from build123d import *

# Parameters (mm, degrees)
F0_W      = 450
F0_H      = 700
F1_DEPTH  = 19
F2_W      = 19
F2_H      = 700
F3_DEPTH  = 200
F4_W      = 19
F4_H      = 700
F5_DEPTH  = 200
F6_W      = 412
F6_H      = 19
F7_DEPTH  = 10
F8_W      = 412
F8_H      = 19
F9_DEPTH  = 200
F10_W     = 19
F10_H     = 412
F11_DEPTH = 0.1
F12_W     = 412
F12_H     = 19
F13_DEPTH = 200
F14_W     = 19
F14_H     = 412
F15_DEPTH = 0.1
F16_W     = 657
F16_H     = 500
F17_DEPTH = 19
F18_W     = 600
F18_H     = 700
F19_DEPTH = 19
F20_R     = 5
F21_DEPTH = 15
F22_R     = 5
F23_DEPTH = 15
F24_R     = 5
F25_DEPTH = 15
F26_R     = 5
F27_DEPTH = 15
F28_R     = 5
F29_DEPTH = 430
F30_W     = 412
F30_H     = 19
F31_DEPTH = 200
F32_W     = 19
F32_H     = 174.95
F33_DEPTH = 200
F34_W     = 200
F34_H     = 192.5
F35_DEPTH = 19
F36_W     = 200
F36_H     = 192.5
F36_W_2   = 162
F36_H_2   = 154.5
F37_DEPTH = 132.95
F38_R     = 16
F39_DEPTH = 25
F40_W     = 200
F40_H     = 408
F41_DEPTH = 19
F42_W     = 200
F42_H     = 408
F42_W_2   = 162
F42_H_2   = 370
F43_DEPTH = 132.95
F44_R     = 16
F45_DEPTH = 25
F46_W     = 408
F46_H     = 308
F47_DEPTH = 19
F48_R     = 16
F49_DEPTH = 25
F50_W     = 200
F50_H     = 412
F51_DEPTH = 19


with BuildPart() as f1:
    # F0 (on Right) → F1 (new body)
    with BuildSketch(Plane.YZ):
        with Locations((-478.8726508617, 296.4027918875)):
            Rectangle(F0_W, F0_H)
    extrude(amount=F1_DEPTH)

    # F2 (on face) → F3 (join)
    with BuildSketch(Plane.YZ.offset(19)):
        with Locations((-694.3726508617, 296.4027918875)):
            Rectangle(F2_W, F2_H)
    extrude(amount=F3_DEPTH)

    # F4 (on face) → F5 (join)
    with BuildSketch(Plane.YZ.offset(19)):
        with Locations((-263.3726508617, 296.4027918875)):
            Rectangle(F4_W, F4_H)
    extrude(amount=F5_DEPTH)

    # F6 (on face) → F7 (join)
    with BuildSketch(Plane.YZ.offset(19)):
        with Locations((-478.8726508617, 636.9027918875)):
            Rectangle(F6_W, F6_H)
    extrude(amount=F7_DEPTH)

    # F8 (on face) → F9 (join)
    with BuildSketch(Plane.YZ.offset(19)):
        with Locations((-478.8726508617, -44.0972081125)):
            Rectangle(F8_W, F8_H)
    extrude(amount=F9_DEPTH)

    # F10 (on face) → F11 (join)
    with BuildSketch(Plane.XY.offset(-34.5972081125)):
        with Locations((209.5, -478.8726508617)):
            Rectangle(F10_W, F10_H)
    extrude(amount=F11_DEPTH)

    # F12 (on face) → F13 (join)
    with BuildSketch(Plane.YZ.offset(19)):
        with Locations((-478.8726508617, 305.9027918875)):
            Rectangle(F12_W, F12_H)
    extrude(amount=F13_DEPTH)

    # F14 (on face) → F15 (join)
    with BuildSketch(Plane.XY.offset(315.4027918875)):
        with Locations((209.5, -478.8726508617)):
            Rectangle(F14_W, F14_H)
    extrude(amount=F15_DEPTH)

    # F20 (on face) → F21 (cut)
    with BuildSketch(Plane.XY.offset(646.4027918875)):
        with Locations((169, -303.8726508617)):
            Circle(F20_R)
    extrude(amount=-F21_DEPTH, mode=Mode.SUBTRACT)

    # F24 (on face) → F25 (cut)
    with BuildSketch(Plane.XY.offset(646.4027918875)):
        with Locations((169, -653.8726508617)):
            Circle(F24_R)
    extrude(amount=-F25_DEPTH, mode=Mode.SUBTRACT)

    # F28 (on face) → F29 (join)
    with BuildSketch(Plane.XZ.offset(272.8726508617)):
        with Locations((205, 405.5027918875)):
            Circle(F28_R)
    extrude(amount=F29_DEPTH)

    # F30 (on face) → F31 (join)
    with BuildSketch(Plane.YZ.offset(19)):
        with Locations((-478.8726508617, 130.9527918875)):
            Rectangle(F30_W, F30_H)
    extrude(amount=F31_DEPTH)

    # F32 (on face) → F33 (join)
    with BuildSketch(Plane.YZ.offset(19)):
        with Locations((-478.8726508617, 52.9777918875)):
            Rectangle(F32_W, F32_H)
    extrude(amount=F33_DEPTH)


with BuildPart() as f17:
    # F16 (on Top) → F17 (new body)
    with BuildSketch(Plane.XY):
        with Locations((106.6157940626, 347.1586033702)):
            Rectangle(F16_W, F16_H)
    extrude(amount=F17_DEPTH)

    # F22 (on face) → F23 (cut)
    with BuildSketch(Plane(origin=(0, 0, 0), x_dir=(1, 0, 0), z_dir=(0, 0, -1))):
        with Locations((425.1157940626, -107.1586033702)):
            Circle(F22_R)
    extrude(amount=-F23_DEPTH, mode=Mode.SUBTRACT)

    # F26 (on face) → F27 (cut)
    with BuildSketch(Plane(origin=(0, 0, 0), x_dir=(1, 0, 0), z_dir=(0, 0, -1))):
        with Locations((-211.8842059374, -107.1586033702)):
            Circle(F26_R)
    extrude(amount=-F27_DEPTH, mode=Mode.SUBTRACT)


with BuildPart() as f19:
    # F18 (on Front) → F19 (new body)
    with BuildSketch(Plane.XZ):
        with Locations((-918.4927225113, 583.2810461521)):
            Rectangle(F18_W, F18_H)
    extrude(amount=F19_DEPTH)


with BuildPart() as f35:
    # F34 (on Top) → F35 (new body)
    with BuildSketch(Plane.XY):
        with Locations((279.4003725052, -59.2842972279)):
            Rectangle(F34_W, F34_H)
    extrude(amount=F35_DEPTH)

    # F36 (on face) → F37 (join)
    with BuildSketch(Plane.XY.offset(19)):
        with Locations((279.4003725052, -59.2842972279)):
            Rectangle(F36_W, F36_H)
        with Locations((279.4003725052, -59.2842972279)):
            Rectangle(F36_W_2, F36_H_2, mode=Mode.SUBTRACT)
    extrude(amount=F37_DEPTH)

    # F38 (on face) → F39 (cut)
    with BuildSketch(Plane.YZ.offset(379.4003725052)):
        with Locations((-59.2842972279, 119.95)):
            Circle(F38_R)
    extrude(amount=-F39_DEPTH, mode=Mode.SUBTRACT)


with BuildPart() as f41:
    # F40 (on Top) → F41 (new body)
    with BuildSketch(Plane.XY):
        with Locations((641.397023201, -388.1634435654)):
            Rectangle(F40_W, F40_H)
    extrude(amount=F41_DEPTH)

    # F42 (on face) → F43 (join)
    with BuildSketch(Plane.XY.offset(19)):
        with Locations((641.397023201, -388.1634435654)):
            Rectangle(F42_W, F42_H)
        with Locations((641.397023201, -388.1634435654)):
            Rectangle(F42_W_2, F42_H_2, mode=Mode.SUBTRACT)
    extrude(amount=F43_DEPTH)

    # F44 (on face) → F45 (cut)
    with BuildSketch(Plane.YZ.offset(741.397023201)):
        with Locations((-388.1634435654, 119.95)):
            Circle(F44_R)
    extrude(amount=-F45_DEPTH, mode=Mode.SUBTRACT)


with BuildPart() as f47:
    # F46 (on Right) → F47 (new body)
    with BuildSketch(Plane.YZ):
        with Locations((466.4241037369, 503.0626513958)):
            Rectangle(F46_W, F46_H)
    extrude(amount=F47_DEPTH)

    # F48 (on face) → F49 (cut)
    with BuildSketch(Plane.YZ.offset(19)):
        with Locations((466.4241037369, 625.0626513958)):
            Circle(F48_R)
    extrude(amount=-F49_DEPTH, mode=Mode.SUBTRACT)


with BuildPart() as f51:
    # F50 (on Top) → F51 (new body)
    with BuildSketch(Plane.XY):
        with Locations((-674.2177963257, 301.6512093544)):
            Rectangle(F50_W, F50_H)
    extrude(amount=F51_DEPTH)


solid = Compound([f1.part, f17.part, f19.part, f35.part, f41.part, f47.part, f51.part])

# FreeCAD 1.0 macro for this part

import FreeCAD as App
import Part
import Sketcher
from FreeCAD import Vector
Q = App.Units.Quantity


def add_polygon(sketch, points):
    """Adds a closed chain of lines whose ends are joined by coincident constraints."""
    first, n = sketch.GeometryCount, len(points)
    for a, b in zip(points, points[1:] + points[:1]):
        sketch.addGeometry(Part.LineSegment(App.Vector(*a, 0), App.Vector(*b, 0)), False)
    for i in range(n):
        sketch.addConstraint(Sketcher.Constraint("Coincident", first + i, 2, first + (i + 1) % n, 1))

doc = App.newDocument("Part")
body = doc.addObject("PartDesign::Body", "Body")

# Sketch on YZ plane
sketch1 = body.newObject("Sketcher::SketchObject", "Sketch")
sketch1.AttachmentSupport = (doc.getObject("YZ_Plane"), [""])
sketch1.MapMode = "FlatFace"
add_polygon(sketch1, [(-703.872651, 646.402792), (-703.872651, -53.597208), (-253.872651, -53.597208), (-253.872651, 646.402792)])  # lines 0-3
sketch1.addConstraint([
    Sketcher.Constraint("Vertical", 0),
    Sketcher.Constraint("Horizontal", 1),
    Sketcher.Constraint("Vertical", 2),
    Sketcher.Constraint("Horizontal", 3),
    Sketcher.Constraint("DistanceX", 1, 1, 1, 2, Q("450 mm")),
    Sketcher.Constraint("DistanceY", 0, 2, 0, 1, Q("700 mm")),
    Sketcher.Constraint("DistanceX", 0, 2, -1, 1, Q("703.872651 mm")),
    Sketcher.Constraint("DistanceY", 0, 2, -1, 1, Q("53.597208 mm")),
])
pad1 = body.newObject("PartDesign::Pad", "Pad")
pad1.Profile = sketch1
pad1.Length = 19

# Sketch on YZ plane
sketch2 = body.newObject("Sketcher::SketchObject", "Sketch001")
sketch2.AttachmentSupport = (doc.getObject("YZ_Plane"), [""])
sketch2.MapMode = "FlatFace"
sketch2.AttachmentOffset = App.Placement(Vector(0, 0, 19), App.Rotation())
add_polygon(sketch2, [(-703.872651, 646.402792), (-703.872651, -53.597208), (-684.872651, -53.597208), (-684.872651, 646.402792)])  # lines 0-3
sketch2.addConstraint([
    Sketcher.Constraint("Vertical", 0),
    Sketcher.Constraint("Horizontal", 1),
    Sketcher.Constraint("Vertical", 2),
    Sketcher.Constraint("Horizontal", 3),
    Sketcher.Constraint("DistanceX", 1, 1, 1, 2, Q("19 mm")),
    Sketcher.Constraint("DistanceY", 0, 2, 0, 1, Q("700 mm")),
    Sketcher.Constraint("DistanceX", 0, 2, -1, 1, Q("703.872651 mm")),
    Sketcher.Constraint("DistanceY", 0, 2, -1, 1, Q("53.597208 mm")),
])
pad2 = body.newObject("PartDesign::Pad", "Pad001")
pad2.Profile = sketch2
pad2.Length = 200

# Sketch on YZ plane
sketch3 = body.newObject("Sketcher::SketchObject", "Sketch002")
sketch3.AttachmentSupport = (doc.getObject("YZ_Plane"), [""])
sketch3.MapMode = "FlatFace"
sketch3.AttachmentOffset = App.Placement(Vector(0, 0, 19), App.Rotation())
add_polygon(sketch3, [(-272.872651, 646.402792), (-272.872651, -53.597208), (-253.872651, -53.597208), (-253.872651, 646.402792)])  # lines 0-3
sketch3.addConstraint([
    Sketcher.Constraint("Vertical", 0),
    Sketcher.Constraint("Horizontal", 1),
    Sketcher.Constraint("Vertical", 2),
    Sketcher.Constraint("Horizontal", 3),
    Sketcher.Constraint("DistanceX", 1, 1, 1, 2, Q("19 mm")),
    Sketcher.Constraint("DistanceY", 0, 2, 0, 1, Q("700 mm")),
    Sketcher.Constraint("DistanceX", 0, 2, -1, 1, Q("272.872651 mm")),
    Sketcher.Constraint("DistanceY", 0, 2, -1, 1, Q("53.597208 mm")),
])
pad3 = body.newObject("PartDesign::Pad", "Pad002")
pad3.Profile = sketch3
pad3.Length = 200

# Sketch on YZ plane
sketch4 = body.newObject("Sketcher::SketchObject", "Sketch003")
sketch4.AttachmentSupport = (doc.getObject("YZ_Plane"), [""])
sketch4.MapMode = "FlatFace"
sketch4.AttachmentOffset = App.Placement(Vector(0, 0, 19), App.Rotation())
add_polygon(sketch4, [(-684.872651, 646.402792), (-684.872651, 627.402792), (-272.872651, 627.402792), (-272.872651, 646.402792)])  # lines 0-3
sketch4.addConstraint([
    Sketcher.Constraint("Vertical", 0),
    Sketcher.Constraint("Horizontal", 1),
    Sketcher.Constraint("Vertical", 2),
    Sketcher.Constraint("Horizontal", 3),
    Sketcher.Constraint("DistanceX", 1, 1, 1, 2, Q("412 mm")),
    Sketcher.Constraint("DistanceY", 0, 2, 0, 1, Q("19 mm")),
    Sketcher.Constraint("DistanceX", 0, 2, -1, 1, Q("684.872651 mm")),
    Sketcher.Constraint("DistanceY", -1, 1, 0, 2, Q("627.402792 mm")),
])
pad4 = body.newObject("PartDesign::Pad", "Pad003")
pad4.Profile = sketch4
pad4.Length = 10

# Sketch on YZ plane
sketch5 = body.newObject("Sketcher::SketchObject", "Sketch004")
sketch5.AttachmentSupport = (doc.getObject("YZ_Plane"), [""])
sketch5.MapMode = "FlatFace"
sketch5.AttachmentOffset = App.Placement(Vector(0, 0, 19), App.Rotation())
add_polygon(sketch5, [(-684.872651, -34.597208), (-684.872651, -53.597208), (-272.872651, -53.597208), (-272.872651, -34.597208)])  # lines 0-3
sketch5.addConstraint([
    Sketcher.Constraint("Vertical", 0),
    Sketcher.Constraint("Horizontal", 1),
    Sketcher.Constraint("Vertical", 2),
    Sketcher.Constraint("Horizontal", 3),
    Sketcher.Constraint("DistanceX", 1, 1, 1, 2, Q("412 mm")),
    Sketcher.Constraint("DistanceY", 0, 2, 0, 1, Q("19 mm")),
    Sketcher.Constraint("DistanceX", 0, 2, -1, 1, Q("684.872651 mm")),
    Sketcher.Constraint("DistanceY", 0, 2, -1, 1, Q("53.597208 mm")),
])
pad5 = body.newObject("PartDesign::Pad", "Pad004")
pad5.Profile = sketch5
pad5.Length = 200

# Sketch on XY plane
sketch6 = body.newObject("Sketcher::SketchObject", "Sketch005")
sketch6.AttachmentSupport = (doc.getObject("XY_Plane"), [""])
sketch6.MapMode = "FlatFace"
sketch6.AttachmentOffset = App.Placement(Vector(0, 0, -34.597208), App.Rotation())
add_polygon(sketch6, [(200, -272.872651), (200, -684.872651), (219, -684.872651), (219, -272.872651)])  # lines 0-3
sketch6.addConstraint([
    Sketcher.Constraint("Vertical", 0),
    Sketcher.Constraint("Horizontal", 1),
    Sketcher.Constraint("Vertical", 2),
    Sketcher.Constraint("Horizontal", 3),
    Sketcher.Constraint("DistanceX", 1, 1, 1, 2, Q("19 mm")),
    Sketcher.Constraint("DistanceY", 0, 2, 0, 1, Q("412 mm")),
    Sketcher.Constraint("DistanceX", -1, 1, 0, 2, Q("200 mm")),
    Sketcher.Constraint("DistanceY", 0, 2, -1, 1, Q("684.872651 mm")),
])
pad6 = body.newObject("PartDesign::Pad", "Pad005")
pad6.Profile = sketch6
pad6.Length = 0.1

# Sketch on YZ plane
sketch7 = body.newObject("Sketcher::SketchObject", "Sketch006")
sketch7.AttachmentSupport = (doc.getObject("YZ_Plane"), [""])
sketch7.MapMode = "FlatFace"
sketch7.AttachmentOffset = App.Placement(Vector(0, 0, 19), App.Rotation())
add_polygon(sketch7, [(-684.872651, 315.402792), (-684.872651, 296.402792), (-272.872651, 296.402792), (-272.872651, 315.402792)])  # lines 0-3
sketch7.addConstraint([
    Sketcher.Constraint("Vertical", 0),
    Sketcher.Constraint("Horizontal", 1),
    Sketcher.Constraint("Vertical", 2),
    Sketcher.Constraint("Horizontal", 3),
    Sketcher.Constraint("DistanceX", 1, 1, 1, 2, Q("412 mm")),
    Sketcher.Constraint("DistanceY", 0, 2, 0, 1, Q("19 mm")),
    Sketcher.Constraint("DistanceX", 0, 2, -1, 1, Q("684.872651 mm")),
    Sketcher.Constraint("DistanceY", -1, 1, 0, 2, Q("296.402792 mm")),
])
pad7 = body.newObject("PartDesign::Pad", "Pad006")
pad7.Profile = sketch7
pad7.Length = 200

# Sketch on XY plane
sketch8 = body.newObject("Sketcher::SketchObject", "Sketch007")
sketch8.AttachmentSupport = (doc.getObject("XY_Plane"), [""])
sketch8.MapMode = "FlatFace"
sketch8.AttachmentOffset = App.Placement(Vector(0, 0, 315.402792), App.Rotation())
add_polygon(sketch8, [(200, -272.872651), (200, -684.872651), (219, -684.872651), (219, -272.872651)])  # lines 0-3
sketch8.addConstraint([
    Sketcher.Constraint("Vertical", 0),
    Sketcher.Constraint("Horizontal", 1),
    Sketcher.Constraint("Vertical", 2),
    Sketcher.Constraint("Horizontal", 3),
    Sketcher.Constraint("DistanceX", 1, 1, 1, 2, Q("19 mm")),
    Sketcher.Constraint("DistanceY", 0, 2, 0, 1, Q("412 mm")),
    Sketcher.Constraint("DistanceX", -1, 1, 0, 2, Q("200 mm")),
    Sketcher.Constraint("DistanceY", 0, 2, -1, 1, Q("684.872651 mm")),
])
pad8 = body.newObject("PartDesign::Pad", "Pad007")
pad8.Profile = sketch8
pad8.Length = 0.1

# Sketch on XY plane
sketch9 = body.newObject("Sketcher::SketchObject", "Sketch008")
sketch9.AttachmentSupport = (doc.getObject("XY_Plane"), [""])
sketch9.MapMode = "FlatFace"
sketch9.AttachmentOffset = App.Placement(Vector(0, 0, 646.402792), App.Rotation())
sketch9.addGeometry(Part.Circle(Vector(169, -303.872651, 0), Vector(0, 0, 1), 5), False)
sketch9.addConstraint([
    Sketcher.Constraint("Diameter", 0, Q("10 mm")),
    Sketcher.Constraint("DistanceX", -1, 1, 0, 3, Q("169 mm")),
    Sketcher.Constraint("DistanceY", 0, 3, -1, 1, Q("303.872651 mm")),
])
pocket1 = body.newObject("PartDesign::Pocket", "Pocket")
pocket1.Profile = sketch9
pocket1.Length = 15

# Sketch on XY plane
sketch10 = body.newObject("Sketcher::SketchObject", "Sketch009")
sketch10.AttachmentSupport = (doc.getObject("XY_Plane"), [""])
sketch10.MapMode = "FlatFace"
sketch10.AttachmentOffset = App.Placement(Vector(0, 0, 646.402792), App.Rotation())
sketch10.addGeometry(Part.Circle(Vector(169, -653.872651, 0), Vector(0, 0, 1), 5), False)
sketch10.addConstraint([
    Sketcher.Constraint("Diameter", 0, Q("10 mm")),
    Sketcher.Constraint("DistanceX", -1, 1, 0, 3, Q("169 mm")),
    Sketcher.Constraint("DistanceY", 0, 3, -1, 1, Q("653.872651 mm")),
])
pocket2 = body.newObject("PartDesign::Pocket", "Pocket001")
pocket2.Profile = sketch10
pocket2.Length = 15

# Sketch on XZ plane
sketch11 = body.newObject("Sketcher::SketchObject", "Sketch010")
sketch11.AttachmentSupport = (doc.getObject("XZ_Plane"), [""])
sketch11.MapMode = "FlatFace"
sketch11.AttachmentOffset = App.Placement(Vector(0, 0, 272.872651), App.Rotation())
sketch11.addGeometry(Part.Circle(Vector(205, 405.502792, 0), Vector(0, 0, 1), 5), False)
sketch11.addConstraint([
    Sketcher.Constraint("Diameter", 0, Q("10 mm")),
    Sketcher.Constraint("DistanceX", -1, 1, 0, 3, Q("205 mm")),
    Sketcher.Constraint("DistanceY", -1, 1, 0, 3, Q("405.502792 mm")),
])
pad9 = body.newObject("PartDesign::Pad", "Pad008")
pad9.Profile = sketch11
pad9.Length = 430

# Sketch on YZ plane
sketch12 = body.newObject("Sketcher::SketchObject", "Sketch011")
sketch12.AttachmentSupport = (doc.getObject("YZ_Plane"), [""])
sketch12.MapMode = "FlatFace"
sketch12.AttachmentOffset = App.Placement(Vector(0, 0, 19), App.Rotation())
add_polygon(sketch12, [(-684.872651, 140.452792), (-684.872651, 121.452792), (-272.872651, 121.452792), (-272.872651, 140.452792)])  # lines 0-3
sketch12.addConstraint([
    Sketcher.Constraint("Vertical", 0),
    Sketcher.Constraint("Horizontal", 1),
    Sketcher.Constraint("Vertical", 2),
    Sketcher.Constraint("Horizontal", 3),
    Sketcher.Constraint("DistanceX", 1, 1, 1, 2, Q("412 mm")),
    Sketcher.Constraint("DistanceY", 0, 2, 0, 1, Q("19 mm")),
    Sketcher.Constraint("DistanceX", 0, 2, -1, 1, Q("684.872651 mm")),
    Sketcher.Constraint("DistanceY", -1, 1, 0, 2, Q("121.452792 mm")),
])
pad10 = body.newObject("PartDesign::Pad", "Pad009")
pad10.Profile = sketch12
pad10.Length = 200

# Sketch on YZ plane
sketch13 = body.newObject("Sketcher::SketchObject", "Sketch012")
sketch13.AttachmentSupport = (doc.getObject("YZ_Plane"), [""])
sketch13.MapMode = "FlatFace"
sketch13.AttachmentOffset = App.Placement(Vector(0, 0, 19), App.Rotation())
add_polygon(sketch13, [(-488.372651, 140.452792), (-488.372651, -34.497208), (-469.372651, -34.497208), (-469.372651, 140.452792)])  # lines 0-3
sketch13.addConstraint([
    Sketcher.Constraint("Vertical", 0),
    Sketcher.Constraint("Horizontal", 1),
    Sketcher.Constraint("Vertical", 2),
    Sketcher.Constraint("Horizontal", 3),
    Sketcher.Constraint("DistanceX", 1, 1, 1, 2, Q("19 mm")),
    Sketcher.Constraint("DistanceY", 0, 2, 0, 1, Q("174.95 mm")),
    Sketcher.Constraint("DistanceX", 0, 2, -1, 1, Q("488.372651 mm")),
    Sketcher.Constraint("DistanceY", 0, 2, -1, 1, Q("34.497208 mm")),
])
pad11 = body.newObject("PartDesign::Pad", "Pad010")
pad11.Profile = sketch13
pad11.Length = 200
body2 = doc.addObject("PartDesign::Body", "Body001")

# Sketch on XY plane
sketch14 = body2.newObject("Sketcher::SketchObject", "Sketch013")
sketch14.AttachmentSupport = (doc.getObject("XY_Plane001"), [""])
sketch14.MapMode = "FlatFace"
add_polygon(sketch14, [(-221.884206, 597.158603), (-221.884206, 97.158603), (435.115794, 97.158603), (435.115794, 597.158603)])  # lines 0-3
sketch14.addConstraint([
    Sketcher.Constraint("Vertical", 0),
    Sketcher.Constraint("Horizontal", 1),
    Sketcher.Constraint("Vertical", 2),
    Sketcher.Constraint("Horizontal", 3),
    Sketcher.Constraint("DistanceX", 1, 1, 1, 2, Q("657 mm")),
    Sketcher.Constraint("DistanceY", 0, 2, 0, 1, Q("500 mm")),
    Sketcher.Constraint("DistanceX", 0, 2, -1, 1, Q("221.884206 mm")),
    Sketcher.Constraint("DistanceY", -1, 1, 0, 2, Q("97.158603 mm")),
])
pad12 = body2.newObject("PartDesign::Pad", "Pad011")
pad12.Profile = sketch14
pad12.Length = 19

# Sketch on XY plane
sketch15 = body2.newObject("Sketcher::SketchObject", "Sketch014")
sketch15.AttachmentSupport = (doc.getObject("XY_Plane001"), [""])
sketch15.MapMode = "FlatFace"
sketch15.addGeometry(Part.Circle(Vector(425.115794, 107.158603, 0), Vector(0, 0, 1), 5), False)
sketch15.addConstraint([
    Sketcher.Constraint("Diameter", 0, Q("10 mm")),
    Sketcher.Constraint("DistanceX", -1, 1, 0, 3, Q("425.115794 mm")),
    Sketcher.Constraint("DistanceY", -1, 1, 0, 3, Q("107.158603 mm")),
])
pocket3 = body2.newObject("PartDesign::Pocket", "Pocket002")
pocket3.Profile = sketch15
pocket3.Length = 15
pocket3.Reversed = True

# Sketch on XY plane
sketch16 = body2.newObject("Sketcher::SketchObject", "Sketch015")
sketch16.AttachmentSupport = (doc.getObject("XY_Plane001"), [""])
sketch16.MapMode = "FlatFace"
sketch16.addGeometry(Part.Circle(Vector(-211.884206, 107.158603, 0), Vector(0, 0, 1), 5), False)
sketch16.addConstraint([
    Sketcher.Constraint("Diameter", 0, Q("10 mm")),
    Sketcher.Constraint("DistanceX", 0, 3, -1, 1, Q("211.884206 mm")),
    Sketcher.Constraint("DistanceY", -1, 1, 0, 3, Q("107.158603 mm")),
])
pocket4 = body2.newObject("PartDesign::Pocket", "Pocket003")
pocket4.Profile = sketch16
pocket4.Length = 15
pocket4.Reversed = True
body3 = doc.addObject("PartDesign::Body", "Body002")

# Sketch on XZ plane
sketch17 = body3.newObject("Sketcher::SketchObject", "Sketch016")
sketch17.AttachmentSupport = (doc.getObject("XZ_Plane002"), [""])
sketch17.MapMode = "FlatFace"
add_polygon(sketch17, [(-1218.492723, 933.281046), (-1218.492723, 233.281046), (-618.492723, 233.281046), (-618.492723, 933.281046)])  # lines 0-3
sketch17.addConstraint([
    Sketcher.Constraint("Vertical", 0),
    Sketcher.Constraint("Horizontal", 1),
    Sketcher.Constraint("Vertical", 2),
    Sketcher.Constraint("Horizontal", 3),
    Sketcher.Constraint("DistanceX", 1, 1, 1, 2, Q("600 mm")),
    Sketcher.Constraint("DistanceY", 0, 2, 0, 1, Q("700 mm")),
    Sketcher.Constraint("DistanceX", 0, 2, -1, 1, Q("1218.492723 mm")),
    Sketcher.Constraint("DistanceY", -1, 1, 0, 2, Q("233.281046 mm")),
])
pad13 = body3.newObject("PartDesign::Pad", "Pad012")
pad13.Profile = sketch17
pad13.Length = 19
body4 = doc.addObject("PartDesign::Body", "Body003")

# Sketch on XY plane
sketch18 = body4.newObject("Sketcher::SketchObject", "Sketch017")
sketch18.AttachmentSupport = (doc.getObject("XY_Plane003"), [""])
sketch18.MapMode = "FlatFace"
add_polygon(sketch18, [(179.400373, 36.965703), (179.400373, -155.534297), (379.400373, -155.534297), (379.400373, 36.965703)])  # lines 0-3
sketch18.addConstraint([
    Sketcher.Constraint("Vertical", 0),
    Sketcher.Constraint("Horizontal", 1),
    Sketcher.Constraint("Vertical", 2),
    Sketcher.Constraint("Horizontal", 3),
    Sketcher.Constraint("DistanceX", 1, 1, 1, 2, Q("200 mm")),
    Sketcher.Constraint("DistanceY", 0, 2, 0, 1, Q("192.5 mm")),
    Sketcher.Constraint("DistanceX", -1, 1, 0, 2, Q("179.400373 mm")),
    Sketcher.Constraint("DistanceY", 0, 2, -1, 1, Q("155.534297 mm")),
])
pad14 = body4.newObject("PartDesign::Pad", "Pad013")
pad14.Profile = sketch18
pad14.Length = 19

# Sketch on XY plane
sketch19 = body4.newObject("Sketcher::SketchObject", "Sketch018")
sketch19.AttachmentSupport = (doc.getObject("XY_Plane003"), [""])
sketch19.MapMode = "FlatFace"
sketch19.AttachmentOffset = App.Placement(Vector(0, 0, 19), App.Rotation())
add_polygon(sketch19, [(179.400373, 36.965703), (179.400373, -155.534297), (379.400373, -155.534297), (379.400373, 36.965703)])  # lines 0-3
add_polygon(sketch19, [(360.400373, -136.534297), (198.400373, -136.534297), (198.400373, 17.965703), (360.400373, 17.965703)])  # lines 4-7
sketch19.addConstraint([
    Sketcher.Constraint("Vertical", 0),
    Sketcher.Constraint("Horizontal", 1),
    Sketcher.Constraint("Vertical", 2),
    Sketcher.Constraint("Horizontal", 3),
    Sketcher.Constraint("Horizontal", 4),
    Sketcher.Constraint("Vertical", 5),
    Sketcher.Constraint("Horizontal", 6),
    Sketcher.Constraint("Vertical", 7),
    Sketcher.Constraint("DistanceX", 1, 1, 1, 2, Q("200 mm")),
    Sketcher.Constraint("DistanceX", 4, 2, 4, 1, Q("162 mm")),
    Sketcher.Constraint("DistanceY", 0, 2, 0, 1, Q("192.5 mm")),
    Sketcher.Constraint("DistanceY", 5, 1, 5, 2, Q("154.5 mm")),
    Sketcher.Constraint("DistanceX", 0, 2, 4, 2, Q("19 mm")),
    Sketcher.Constraint("DistanceY", 0, 2, 4, 2, Q("19 mm")),
    Sketcher.Constraint("DistanceX", -1, 1, 0, 2, Q("179.400373 mm")),
    Sketcher.Constraint("DistanceY", 0, 2, -1, 1, Q("155.534297 mm")),
])
pad15 = body4.newObject("PartDesign::Pad", "Pad014")
pad15.Profile = sketch19
pad15.Length = 132.95

# Sketch on YZ plane
sketch20 = body4.newObject("Sketcher::SketchObject", "Sketch019")
sketch20.AttachmentSupport = (doc.getObject("YZ_Plane003"), [""])
sketch20.MapMode = "FlatFace"
sketch20.AttachmentOffset = App.Placement(Vector(0, 0, 379.400373), App.Rotation())
sketch20.addGeometry(Part.Circle(Vector(-59.284297, 119.95, 0), Vector(0, 0, 1), 16), False)
sketch20.addConstraint([
    Sketcher.Constraint("Diameter", 0, Q("32 mm")),
    Sketcher.Constraint("DistanceY", -1, 1, 0, 3, Q("119.95 mm")),
    Sketcher.Constraint("DistanceX", 0, 3, -1, 1, Q("59.284297 mm")),
])
pocket5 = body4.newObject("PartDesign::Pocket", "Pocket004")
pocket5.Profile = sketch20
pocket5.Length = 25
body5 = doc.addObject("PartDesign::Body", "Body004")

# Sketch on XY plane
sketch21 = body5.newObject("Sketcher::SketchObject", "Sketch020")
sketch21.AttachmentSupport = (doc.getObject("XY_Plane004"), [""])
sketch21.MapMode = "FlatFace"
add_polygon(sketch21, [(541.397023, -184.163444), (541.397023, -592.163444), (741.397023, -592.163444), (741.397023, -184.163444)])  # lines 0-3
sketch21.addConstraint([
    Sketcher.Constraint("Vertical", 0),
    Sketcher.Constraint("Horizontal", 1),
    Sketcher.Constraint("Vertical", 2),
    Sketcher.Constraint("Horizontal", 3),
    Sketcher.Constraint("DistanceX", 1, 1, 1, 2, Q("200 mm")),
    Sketcher.Constraint("DistanceY", 0, 2, 0, 1, Q("408 mm")),
    Sketcher.Constraint("DistanceX", -1, 1, 0, 2, Q("541.397023 mm")),
    Sketcher.Constraint("DistanceY", 0, 2, -1, 1, Q("592.163444 mm")),
])
pad16 = body5.newObject("PartDesign::Pad", "Pad015")
pad16.Profile = sketch21
pad16.Length = 19

# Sketch on XY plane
sketch22 = body5.newObject("Sketcher::SketchObject", "Sketch021")
sketch22.AttachmentSupport = (doc.getObject("XY_Plane004"), [""])
sketch22.MapMode = "FlatFace"
sketch22.AttachmentOffset = App.Placement(Vector(0, 0, 19), App.Rotation())
add_polygon(sketch22, [(541.397023, -184.163444), (541.397023, -592.163444), (741.397023, -592.163444), (741.397023, -184.163444)])  # lines 0-3
add_polygon(sketch22, [(722.397023, -573.163444), (560.397023, -573.163444), (560.397023, -203.163444), (722.397023, -203.163444)])  # lines 4-7
sketch22.addConstraint([
    Sketcher.Constraint("Vertical", 0),
    Sketcher.Constraint("Horizontal", 1),
    Sketcher.Constraint("Vertical", 2),
    Sketcher.Constraint("Horizontal", 3),
    Sketcher.Constraint("Horizontal", 4),
    Sketcher.Constraint("Vertical", 5),
    Sketcher.Constraint("Horizontal", 6),
    Sketcher.Constraint("Vertical", 7),
    Sketcher.Constraint("DistanceX", 1, 1, 1, 2, Q("200 mm")),
    Sketcher.Constraint("DistanceX", 4, 2, 4, 1, Q("162 mm")),
    Sketcher.Constraint("DistanceY", 0, 2, 0, 1, Q("408 mm")),
    Sketcher.Constraint("DistanceY", 5, 1, 5, 2, Q("370 mm")),
    Sketcher.Constraint("DistanceX", 0, 2, 4, 2, Q("19 mm")),
    Sketcher.Constraint("DistanceY", 0, 2, 4, 2, Q("19 mm")),
    Sketcher.Constraint("DistanceX", -1, 1, 0, 2, Q("541.397023 mm")),
    Sketcher.Constraint("DistanceY", 0, 2, -1, 1, Q("592.163444 mm")),
])
pad17 = body5.newObject("PartDesign::Pad", "Pad016")
pad17.Profile = sketch22
pad17.Length = 132.95

# Sketch on YZ plane
sketch23 = body5.newObject("Sketcher::SketchObject", "Sketch022")
sketch23.AttachmentSupport = (doc.getObject("YZ_Plane004"), [""])
sketch23.MapMode = "FlatFace"
sketch23.AttachmentOffset = App.Placement(Vector(0, 0, 741.397023), App.Rotation())
sketch23.addGeometry(Part.Circle(Vector(-388.163444, 119.95, 0), Vector(0, 0, 1), 16), False)
sketch23.addConstraint([
    Sketcher.Constraint("Diameter", 0, Q("32 mm")),
    Sketcher.Constraint("DistanceY", -1, 1, 0, 3, Q("119.95 mm")),
    Sketcher.Constraint("DistanceX", 0, 3, -1, 1, Q("388.163444 mm")),
])
pocket6 = body5.newObject("PartDesign::Pocket", "Pocket005")
pocket6.Profile = sketch23
pocket6.Length = 25
body6 = doc.addObject("PartDesign::Body", "Body005")

# Sketch on YZ plane
sketch24 = body6.newObject("Sketcher::SketchObject", "Sketch023")
sketch24.AttachmentSupport = (doc.getObject("YZ_Plane005"), [""])
sketch24.MapMode = "FlatFace"
add_polygon(sketch24, [(262.424104, 657.062651), (262.424104, 349.062651), (670.424104, 349.062651), (670.424104, 657.062651)])  # lines 0-3
sketch24.addConstraint([
    Sketcher.Constraint("Vertical", 0),
    Sketcher.Constraint("Horizontal", 1),
    Sketcher.Constraint("Vertical", 2),
    Sketcher.Constraint("Horizontal", 3),
    Sketcher.Constraint("DistanceX", 1, 1, 1, 2, Q("408 mm")),
    Sketcher.Constraint("DistanceY", 0, 2, 0, 1, Q("308 mm")),
    Sketcher.Constraint("DistanceY", -1, 1, 0, 2, Q("349.062651 mm")),
    Sketcher.Constraint("DistanceX", -1, 1, 0, 2, Q("262.424104 mm")),
])
pad18 = body6.newObject("PartDesign::Pad", "Pad017")
pad18.Profile = sketch24
pad18.Length = 19

# Sketch on YZ plane
sketch25 = body6.newObject("Sketcher::SketchObject", "Sketch024")
sketch25.AttachmentSupport = (doc.getObject("YZ_Plane005"), [""])
sketch25.MapMode = "FlatFace"
sketch25.AttachmentOffset = App.Placement(Vector(0, 0, 19), App.Rotation())
sketch25.addGeometry(Part.Circle(Vector(466.424104, 625.062651, 0), Vector(0, 0, 1), 16), False)
sketch25.addConstraint([
    Sketcher.Constraint("Diameter", 0, Q("32 mm")),
    Sketcher.Constraint("DistanceY", -1, 1, 0, 3, Q("625.062651 mm")),
    Sketcher.Constraint("DistanceX", -1, 1, 0, 3, Q("466.424104 mm")),
])
pocket7 = body6.newObject("PartDesign::Pocket", "Pocket006")
pocket7.Profile = sketch25
pocket7.Length = 25
body7 = doc.addObject("PartDesign::Body", "Body006")

# Sketch on XY plane
sketch26 = body7.newObject("Sketcher::SketchObject", "Sketch025")
sketch26.AttachmentSupport = (doc.getObject("XY_Plane006"), [""])
sketch26.MapMode = "FlatFace"
add_polygon(sketch26, [(-774.217796, 507.651209), (-774.217796, 95.651209), (-574.217796, 95.651209), (-574.217796, 507.651209)])  # lines 0-3
sketch26.addConstraint([
    Sketcher.Constraint("Vertical", 0),
    Sketcher.Constraint("Horizontal", 1),
    Sketcher.Constraint("Vertical", 2),
    Sketcher.Constraint("Horizontal", 3),
    Sketcher.Constraint("DistanceX", 1, 1, 1, 2, Q("200 mm")),
    Sketcher.Constraint("DistanceY", 0, 2, 0, 1, Q("412 mm")),
    Sketcher.Constraint("DistanceY", -1, 1, 0, 2, Q("95.651209 mm")),
    Sketcher.Constraint("DistanceX", 0, 2, -1, 1, Q("774.217796 mm")),
])
pad19 = body7.newObject("PartDesign::Pad", "Pad018")
pad19.Profile = sketch26
pad19.Length = 19

doc.recompute()
